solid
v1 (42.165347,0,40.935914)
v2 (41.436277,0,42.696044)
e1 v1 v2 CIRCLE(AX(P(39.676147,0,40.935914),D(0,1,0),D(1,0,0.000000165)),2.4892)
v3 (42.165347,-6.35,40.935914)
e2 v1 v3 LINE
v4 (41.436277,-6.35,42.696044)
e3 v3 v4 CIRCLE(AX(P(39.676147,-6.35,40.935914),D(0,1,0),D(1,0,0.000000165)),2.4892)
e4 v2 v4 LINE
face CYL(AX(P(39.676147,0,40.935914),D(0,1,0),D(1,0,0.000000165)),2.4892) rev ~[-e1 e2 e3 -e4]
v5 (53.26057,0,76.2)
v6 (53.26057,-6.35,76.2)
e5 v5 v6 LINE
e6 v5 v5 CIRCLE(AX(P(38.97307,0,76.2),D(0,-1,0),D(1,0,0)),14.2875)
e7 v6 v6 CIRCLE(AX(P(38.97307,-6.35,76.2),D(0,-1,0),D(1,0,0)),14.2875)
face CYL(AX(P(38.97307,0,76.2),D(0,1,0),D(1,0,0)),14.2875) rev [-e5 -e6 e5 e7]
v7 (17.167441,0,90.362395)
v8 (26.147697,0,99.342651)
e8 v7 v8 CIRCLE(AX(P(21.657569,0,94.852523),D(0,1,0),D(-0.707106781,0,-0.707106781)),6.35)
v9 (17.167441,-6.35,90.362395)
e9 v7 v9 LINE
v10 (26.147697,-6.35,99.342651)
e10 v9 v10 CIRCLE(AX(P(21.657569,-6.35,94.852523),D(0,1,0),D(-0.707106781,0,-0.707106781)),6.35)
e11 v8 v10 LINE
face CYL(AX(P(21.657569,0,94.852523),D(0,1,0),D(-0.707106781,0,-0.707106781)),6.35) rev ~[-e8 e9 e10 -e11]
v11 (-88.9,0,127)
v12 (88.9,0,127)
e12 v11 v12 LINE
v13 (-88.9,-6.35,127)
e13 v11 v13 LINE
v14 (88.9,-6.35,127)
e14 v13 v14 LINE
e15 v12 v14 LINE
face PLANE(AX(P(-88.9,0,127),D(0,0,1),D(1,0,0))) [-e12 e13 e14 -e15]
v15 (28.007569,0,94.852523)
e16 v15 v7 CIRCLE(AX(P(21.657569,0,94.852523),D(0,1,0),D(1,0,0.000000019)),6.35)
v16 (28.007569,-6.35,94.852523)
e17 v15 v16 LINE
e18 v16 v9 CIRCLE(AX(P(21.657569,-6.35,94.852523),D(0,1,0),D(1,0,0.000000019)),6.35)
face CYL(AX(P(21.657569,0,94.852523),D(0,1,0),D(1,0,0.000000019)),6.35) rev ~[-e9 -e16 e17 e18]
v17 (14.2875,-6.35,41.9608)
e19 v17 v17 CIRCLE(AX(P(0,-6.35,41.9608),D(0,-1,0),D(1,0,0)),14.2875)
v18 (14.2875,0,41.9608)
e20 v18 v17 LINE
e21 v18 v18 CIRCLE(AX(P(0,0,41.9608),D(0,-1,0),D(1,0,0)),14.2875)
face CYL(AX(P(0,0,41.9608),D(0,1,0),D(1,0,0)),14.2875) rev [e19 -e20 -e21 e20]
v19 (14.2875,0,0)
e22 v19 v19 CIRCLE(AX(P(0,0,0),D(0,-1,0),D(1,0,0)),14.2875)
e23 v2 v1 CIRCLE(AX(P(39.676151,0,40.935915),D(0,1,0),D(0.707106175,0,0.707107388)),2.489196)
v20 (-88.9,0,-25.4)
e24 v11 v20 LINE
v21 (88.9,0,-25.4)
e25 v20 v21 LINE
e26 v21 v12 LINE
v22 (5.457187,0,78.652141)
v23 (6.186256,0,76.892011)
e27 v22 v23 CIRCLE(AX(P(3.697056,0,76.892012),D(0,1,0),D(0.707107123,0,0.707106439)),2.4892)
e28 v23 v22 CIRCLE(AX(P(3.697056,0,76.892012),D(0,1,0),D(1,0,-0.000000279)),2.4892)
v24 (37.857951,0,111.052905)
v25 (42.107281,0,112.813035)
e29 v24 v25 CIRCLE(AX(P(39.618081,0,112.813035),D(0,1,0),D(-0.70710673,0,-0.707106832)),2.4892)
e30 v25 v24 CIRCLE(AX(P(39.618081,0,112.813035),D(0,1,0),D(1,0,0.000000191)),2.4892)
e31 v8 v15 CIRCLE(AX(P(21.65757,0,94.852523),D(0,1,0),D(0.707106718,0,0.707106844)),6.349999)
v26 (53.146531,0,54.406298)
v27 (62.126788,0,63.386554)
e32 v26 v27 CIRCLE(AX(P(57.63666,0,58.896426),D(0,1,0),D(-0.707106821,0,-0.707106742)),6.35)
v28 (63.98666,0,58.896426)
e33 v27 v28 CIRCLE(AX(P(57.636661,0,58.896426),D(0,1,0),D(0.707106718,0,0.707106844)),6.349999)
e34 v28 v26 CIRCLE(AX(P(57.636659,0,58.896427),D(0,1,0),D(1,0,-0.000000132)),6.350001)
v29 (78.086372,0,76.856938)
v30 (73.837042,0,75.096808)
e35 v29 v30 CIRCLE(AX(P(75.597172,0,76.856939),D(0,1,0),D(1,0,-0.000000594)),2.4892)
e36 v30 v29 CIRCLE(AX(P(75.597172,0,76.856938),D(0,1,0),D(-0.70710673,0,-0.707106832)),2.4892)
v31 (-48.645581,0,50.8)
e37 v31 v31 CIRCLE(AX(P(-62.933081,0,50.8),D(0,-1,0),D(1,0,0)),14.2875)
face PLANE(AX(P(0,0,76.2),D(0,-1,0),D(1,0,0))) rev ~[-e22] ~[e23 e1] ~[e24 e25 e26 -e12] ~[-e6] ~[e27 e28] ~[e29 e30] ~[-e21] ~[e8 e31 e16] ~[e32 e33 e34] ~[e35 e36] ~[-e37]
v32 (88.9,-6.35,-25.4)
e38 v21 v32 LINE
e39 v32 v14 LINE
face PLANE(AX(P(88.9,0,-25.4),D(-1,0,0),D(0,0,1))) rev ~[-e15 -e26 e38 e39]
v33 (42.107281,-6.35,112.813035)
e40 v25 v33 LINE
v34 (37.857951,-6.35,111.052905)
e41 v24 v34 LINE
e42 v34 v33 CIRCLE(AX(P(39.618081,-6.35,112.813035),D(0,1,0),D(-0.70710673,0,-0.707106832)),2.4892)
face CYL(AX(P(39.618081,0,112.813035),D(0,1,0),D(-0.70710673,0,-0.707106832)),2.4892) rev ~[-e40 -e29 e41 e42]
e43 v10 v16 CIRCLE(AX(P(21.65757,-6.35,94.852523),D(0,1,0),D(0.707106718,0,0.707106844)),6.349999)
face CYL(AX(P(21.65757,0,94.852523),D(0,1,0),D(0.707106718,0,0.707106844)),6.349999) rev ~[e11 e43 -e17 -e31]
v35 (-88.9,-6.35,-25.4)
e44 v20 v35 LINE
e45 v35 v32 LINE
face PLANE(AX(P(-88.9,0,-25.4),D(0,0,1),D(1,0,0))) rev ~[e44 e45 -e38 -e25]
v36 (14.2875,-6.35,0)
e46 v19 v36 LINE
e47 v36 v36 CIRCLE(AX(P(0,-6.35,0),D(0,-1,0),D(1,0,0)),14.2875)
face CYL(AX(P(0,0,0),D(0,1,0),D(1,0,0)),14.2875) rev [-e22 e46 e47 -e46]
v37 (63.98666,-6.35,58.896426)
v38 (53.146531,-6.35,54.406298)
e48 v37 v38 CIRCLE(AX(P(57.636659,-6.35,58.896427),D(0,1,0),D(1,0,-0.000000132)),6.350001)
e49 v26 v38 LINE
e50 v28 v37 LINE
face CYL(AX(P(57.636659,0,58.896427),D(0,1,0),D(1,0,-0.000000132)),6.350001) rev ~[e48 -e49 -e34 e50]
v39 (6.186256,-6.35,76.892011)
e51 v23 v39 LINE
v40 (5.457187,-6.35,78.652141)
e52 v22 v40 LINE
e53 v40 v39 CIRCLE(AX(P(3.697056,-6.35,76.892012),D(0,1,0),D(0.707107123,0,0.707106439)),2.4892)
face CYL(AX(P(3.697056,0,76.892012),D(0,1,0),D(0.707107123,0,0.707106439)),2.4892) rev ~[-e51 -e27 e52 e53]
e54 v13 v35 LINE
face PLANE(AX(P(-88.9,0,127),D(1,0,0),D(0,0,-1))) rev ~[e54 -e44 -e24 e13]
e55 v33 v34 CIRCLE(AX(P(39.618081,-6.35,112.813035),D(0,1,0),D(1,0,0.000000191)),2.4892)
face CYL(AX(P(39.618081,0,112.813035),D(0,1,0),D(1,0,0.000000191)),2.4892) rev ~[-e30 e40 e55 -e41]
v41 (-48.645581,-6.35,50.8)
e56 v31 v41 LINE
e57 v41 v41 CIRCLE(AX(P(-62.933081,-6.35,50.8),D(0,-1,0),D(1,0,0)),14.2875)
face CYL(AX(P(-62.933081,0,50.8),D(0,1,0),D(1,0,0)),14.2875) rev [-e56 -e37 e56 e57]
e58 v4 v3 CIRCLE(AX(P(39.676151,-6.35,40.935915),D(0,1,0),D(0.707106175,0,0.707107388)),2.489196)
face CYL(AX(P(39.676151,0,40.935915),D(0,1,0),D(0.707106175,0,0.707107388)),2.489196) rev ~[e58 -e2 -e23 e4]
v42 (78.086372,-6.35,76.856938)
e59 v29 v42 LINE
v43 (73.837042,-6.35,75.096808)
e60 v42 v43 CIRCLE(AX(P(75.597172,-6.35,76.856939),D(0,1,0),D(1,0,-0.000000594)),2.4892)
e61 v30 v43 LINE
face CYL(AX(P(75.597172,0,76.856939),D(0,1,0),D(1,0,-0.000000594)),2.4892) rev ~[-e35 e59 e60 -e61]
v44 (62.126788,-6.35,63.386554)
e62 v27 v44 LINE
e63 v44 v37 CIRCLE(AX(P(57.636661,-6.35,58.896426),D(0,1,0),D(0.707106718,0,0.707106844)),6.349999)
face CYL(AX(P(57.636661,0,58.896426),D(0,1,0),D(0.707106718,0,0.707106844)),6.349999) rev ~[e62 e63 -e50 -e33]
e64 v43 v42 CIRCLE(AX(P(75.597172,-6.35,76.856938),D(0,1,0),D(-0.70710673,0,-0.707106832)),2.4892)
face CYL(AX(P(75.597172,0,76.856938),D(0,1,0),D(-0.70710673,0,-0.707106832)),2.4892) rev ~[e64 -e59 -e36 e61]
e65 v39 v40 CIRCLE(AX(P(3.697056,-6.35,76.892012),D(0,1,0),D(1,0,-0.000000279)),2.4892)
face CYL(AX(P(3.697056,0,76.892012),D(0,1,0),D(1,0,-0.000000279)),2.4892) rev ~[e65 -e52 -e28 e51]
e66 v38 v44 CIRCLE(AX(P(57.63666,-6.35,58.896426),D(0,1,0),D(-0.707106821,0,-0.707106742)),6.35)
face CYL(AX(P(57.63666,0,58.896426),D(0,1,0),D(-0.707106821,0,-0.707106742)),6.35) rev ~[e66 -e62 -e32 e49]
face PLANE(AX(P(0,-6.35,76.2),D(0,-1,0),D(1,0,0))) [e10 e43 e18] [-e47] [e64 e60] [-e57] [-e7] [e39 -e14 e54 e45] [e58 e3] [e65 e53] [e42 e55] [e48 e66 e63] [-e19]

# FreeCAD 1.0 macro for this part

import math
import FreeCAD as App
import Part
import Sketcher

V = App.Vector
Q = App.Units.Quantity

doc = App.newDocument("Part")
body = doc.addObject("PartDesign::Body", "Body")

# Sketch on XZ plane
sketch1 = doc.addObject("Sketcher::SketchObject", "Sketch")
body.addObject(sketch1)
sketch1.AttachmentSupport = (doc.XZ_Plane, [""])
sketch1.MapMode = "FlatFace"
sketch1.addGeometry([
    Part.LineSegment(V(-88.9, 127, 0), V(-88.9, -25.4, 0)),  # 0
    Part.LineSegment(V(-88.9, -25.4, 0), V(88.9, -25.4, 0)),  # 1
    Part.LineSegment(V(88.9, -25.4, 0), V(88.9, 127, 0)),  # 2
    Part.LineSegment(V(88.9, 127, 0), V(-88.9, 127, 0)),  # 3
    Part.Circle(V(0, 0, 0), V(0, 0, 1), 14.2875),  # 4
    Part.Circle(V(0, 41.9608, 0), V(0, 0, 1), 14.2875),  # 5
    Part.ArcOfCircle(Part.Circle(V(39.676151, 40.935915, 0), V(0, 0, 1), 2.489196), math.radians(-0.000033), math.radians(45.000049)),  # 6
    Part.ArcOfCircle(Part.Circle(V(39.676147, 40.935914, 0), V(0, 0, 1), 2.4892), math.radians(45.000006), math.radians(360.000009)),  # 7
    Part.Circle(V(-62.933081, 50.8, 0), V(0, 0, 1), 14.2875),  # 8
    Part.ArcOfCircle(Part.Circle(V(3.697056, 76.892012, 0), V(0, 0, 1), 2.4892), math.radians(-0.000012), math.radians(44.999972)),  # 9
    Part.ArcOfCircle(Part.Circle(V(3.697056, 76.892012, 0), V(0, 0, 1), 2.4892), math.radians(44.999976), math.radians(359.999984)),  # 10
    Part.Circle(V(38.97307, 76.2, 0), V(0, 0, 1), 14.2875),  # 11
    Part.ArcOfCircle(Part.Circle(V(57.63666, 58.896426, 0), V(0, 0, 1), 6.35), math.radians(44.999997), math.radians(224.999997)),  # 12
    Part.ArcOfCircle(Part.Circle(V(57.636661, 58.896426, 0), V(0, 0, 1), 6.349999), math.radians(-0.000003), math.radians(45.000005)),  # 13
    Part.ArcOfCircle(Part.Circle(V(57.636659, 58.896427, 0), V(0, 0, 1), 6.350001), math.radians(-134.999997), math.radians(-0.000008)),  # 14
    Part.ArcOfCircle(Part.Circle(V(75.597172, 76.856938, 0), V(0, 0, 1), 2.4892), math.radians(-0.000007), math.radians(225.000004)),  # 15
    Part.ArcOfCircle(Part.Circle(V(75.597172, 76.856939, 0), V(0, 0, 1), 2.4892), math.radians(-134.999969), math.radians(-0.000034)),  # 16
    Part.ArcOfCircle(Part.Circle(V(21.657569, 94.852523, 0), V(0, 0, 1), 6.35), math.radians(45), math.radians(225)),  # 17
    Part.ArcOfCircle(Part.Circle(V(21.65757, 94.852523, 0), V(0, 0, 1), 6.349999), math.radians(-0.000003), math.radians(45.000005)),  # 18
    Part.ArcOfCircle(Part.Circle(V(21.657569, 94.852523, 0), V(0, 0, 1), 6.35), math.radians(-135.000001), math.radians(0.000001)),  # 19
    Part.ArcOfCircle(Part.Circle(V(39.618081, 112.813035, 0), V(0, 0, 1), 2.4892), math.radians(-0.000007), math.radians(225.000004)),  # 20
    Part.ArcOfCircle(Part.Circle(V(39.618081, 112.813035, 0), V(0, 0, 1), 2.4892), math.radians(-135.000014), math.radians(0.000011)),  # 21
], False)
sketch1.addConstraint([
    Sketcher.Constraint("Coincident", 0, 2, 1, 1),
    Sketcher.Constraint("Coincident", 1, 2, 2, 1),
    Sketcher.Constraint("Coincident", 2, 2, 3, 1),
    Sketcher.Constraint("Coincident", 3, 2, 0, 1),
    Sketcher.Constraint("Tangent", 6, 1, 7, 2),
    Sketcher.Constraint("Coincident", 7, 1, 6, 2),
    Sketcher.Constraint("Tangent", 9, 1, 10, 2),
    Sketcher.Constraint("Coincident", 10, 1, 9, 2),
    Sketcher.Constraint("Tangent", 12, 1, 13, 2),
    Sketcher.Constraint("Tangent", 13, 1, 14, 2),
    Sketcher.Constraint("Tangent", 14, 1, 12, 2),
    Sketcher.Constraint("Tangent", 15, 1, 16, 2),
    Sketcher.Constraint("Coincident", 16, 1, 15, 2),
    Sketcher.Constraint("Tangent", 17, 1, 18, 2),
    Sketcher.Constraint("Tangent", 18, 1, 19, 2),
    Sketcher.Constraint("Tangent", 19, 1, 17, 2),
    Sketcher.Constraint("Tangent", 20, 1, 21, 2),
    Sketcher.Constraint("Coincident", 21, 1, 20, 2),
    Sketcher.Constraint("Vertical", 0),
    Sketcher.Constraint("Horizontal", 1),
    Sketcher.Constraint("Vertical", 2),
    Sketcher.Constraint("Horizontal", 3),
    Sketcher.Constraint("Coincident", 4, 3, -1, 1),
    Sketcher.Constraint("Equal", 4, 5),
    Sketcher.Constraint("Equal", 5, 8),
    Sketcher.Constraint("Equal", 7, 9),
    Sketcher.Constraint("Equal", 8, 11),
    Sketcher.Constraint("Equal", 10, 15),
    Sketcher.Constraint("Equal", 14, 17),
    Sketcher.Constraint("Equal", 16, 20),
    Sketcher.Constraint("PointOnObject", 5, 3, -2),
    Sketcher.Constraint("Horizontal", 7, 3, 6, 1),
    Sketcher.Constraint("Horizontal", 10, 3, 9, 1),
    Sketcher.Constraint("Horizontal", 14, 3, 13, 1),
    Sketcher.Constraint("Horizontal", 16, 3, 15, 1),
    Sketcher.Constraint("Horizontal", 19, 3, 18, 1),
    Sketcher.Constraint("Horizontal", 21, 3, 20, 1),
    Sketcher.Constraint("DistanceX", 1, 1, 1, 2, Q("7 in")),
    Sketcher.Constraint("DistanceY", 0, 2, 0, 1, Q("6 in")),
    Sketcher.Constraint("Radius", 12, Q("0.25 in")),
    Sketcher.Constraint("Diameter", 4, Q("1.125 in")),
    Sketcher.Constraint("DistanceY", -1, 1, 8, 3, Q("2 in")),
    Sketcher.Constraint("DistanceY", -1, 1, 11, 3, Q("3 in")),
    Sketcher.Constraint("DistanceY", 0, 2, -1, 1, Q("1 in")),
    Sketcher.Constraint("Radius", 6, Q("0.0979998 in")),
    Sketcher.Constraint("DistanceX", 0, 2, -1, 1, Q("3.5 in")),
    Sketcher.Constraint("DistanceY", -1, 1, 5, 3, Q("1.652 in")),
    Sketcher.Constraint("DistanceX", 9, 3, 6, 3, Q("1.4164998 in")),
    Sketcher.Constraint("DistanceY", 7, 3, 10, 3, 35.956098),
    Sketcher.Constraint("DistanceX", 11, 3, 16, 3, 36.624102),
    Sketcher.Constraint("DistanceX", 17, 3, 11, 3, 17.315501),
    Sketcher.Constraint("DistanceX", -1, 1, 6, 3, 39.676151),
    Sketcher.Constraint("DistanceX", 8, 3, -1, 1, 62.933081),
    Sketcher.Constraint("DistanceY", -1, 1, 9, 3, 76.892012),
    Sketcher.Constraint("DistanceX", -1, 1, 11, 3, 38.97307),
    Sketcher.Constraint("DistanceX", -1, 1, 12, 3, 57.63666),
    Sketcher.Constraint("DistanceY", -1, 1, 15, 3, 76.856938),
    Sketcher.Constraint("DistanceX", -1, 1, 20, 3, 39.618081),
    Sketcher.Constraint("DistanceY", -1, 1, 10, 1, 78.652141),
    Sketcher.Constraint("DistanceX", -1, 1, 12, 1, 62.126788),
    Sketcher.Constraint("DistanceX", -1, 1, 14, 1, 53.146531),
    Sketcher.Constraint("DistanceY", -1, 1, 16, 1, 75.096808),
    Sketcher.Constraint("DistanceY", -1, 1, 17, 1, 99.342651),
    Sketcher.Constraint("DistanceX", -1, 1, 19, 1, 17.167441),
    Sketcher.Constraint("DistanceX", -1, 1, 21, 1, 37.857951),
    Sketcher.Constraint("DistanceY", 6, 3, 12, 3, 17.960511),
    Sketcher.Constraint("DistanceY", 10, 3, 17, 3, 17.960511),
    Sketcher.Constraint("DistanceY", 18, 3, 20, 3, 17.960512),
    Sketcher.Constraint("DistanceX", 7, 1, 6, 1, 0.72907),
])
pad1 = doc.addObject("PartDesign::Pad", "Pad")
body.addObject(pad1)
pad1.Profile = sketch1
pad1.Length = Q("0.25 in")

doc.recompute()
